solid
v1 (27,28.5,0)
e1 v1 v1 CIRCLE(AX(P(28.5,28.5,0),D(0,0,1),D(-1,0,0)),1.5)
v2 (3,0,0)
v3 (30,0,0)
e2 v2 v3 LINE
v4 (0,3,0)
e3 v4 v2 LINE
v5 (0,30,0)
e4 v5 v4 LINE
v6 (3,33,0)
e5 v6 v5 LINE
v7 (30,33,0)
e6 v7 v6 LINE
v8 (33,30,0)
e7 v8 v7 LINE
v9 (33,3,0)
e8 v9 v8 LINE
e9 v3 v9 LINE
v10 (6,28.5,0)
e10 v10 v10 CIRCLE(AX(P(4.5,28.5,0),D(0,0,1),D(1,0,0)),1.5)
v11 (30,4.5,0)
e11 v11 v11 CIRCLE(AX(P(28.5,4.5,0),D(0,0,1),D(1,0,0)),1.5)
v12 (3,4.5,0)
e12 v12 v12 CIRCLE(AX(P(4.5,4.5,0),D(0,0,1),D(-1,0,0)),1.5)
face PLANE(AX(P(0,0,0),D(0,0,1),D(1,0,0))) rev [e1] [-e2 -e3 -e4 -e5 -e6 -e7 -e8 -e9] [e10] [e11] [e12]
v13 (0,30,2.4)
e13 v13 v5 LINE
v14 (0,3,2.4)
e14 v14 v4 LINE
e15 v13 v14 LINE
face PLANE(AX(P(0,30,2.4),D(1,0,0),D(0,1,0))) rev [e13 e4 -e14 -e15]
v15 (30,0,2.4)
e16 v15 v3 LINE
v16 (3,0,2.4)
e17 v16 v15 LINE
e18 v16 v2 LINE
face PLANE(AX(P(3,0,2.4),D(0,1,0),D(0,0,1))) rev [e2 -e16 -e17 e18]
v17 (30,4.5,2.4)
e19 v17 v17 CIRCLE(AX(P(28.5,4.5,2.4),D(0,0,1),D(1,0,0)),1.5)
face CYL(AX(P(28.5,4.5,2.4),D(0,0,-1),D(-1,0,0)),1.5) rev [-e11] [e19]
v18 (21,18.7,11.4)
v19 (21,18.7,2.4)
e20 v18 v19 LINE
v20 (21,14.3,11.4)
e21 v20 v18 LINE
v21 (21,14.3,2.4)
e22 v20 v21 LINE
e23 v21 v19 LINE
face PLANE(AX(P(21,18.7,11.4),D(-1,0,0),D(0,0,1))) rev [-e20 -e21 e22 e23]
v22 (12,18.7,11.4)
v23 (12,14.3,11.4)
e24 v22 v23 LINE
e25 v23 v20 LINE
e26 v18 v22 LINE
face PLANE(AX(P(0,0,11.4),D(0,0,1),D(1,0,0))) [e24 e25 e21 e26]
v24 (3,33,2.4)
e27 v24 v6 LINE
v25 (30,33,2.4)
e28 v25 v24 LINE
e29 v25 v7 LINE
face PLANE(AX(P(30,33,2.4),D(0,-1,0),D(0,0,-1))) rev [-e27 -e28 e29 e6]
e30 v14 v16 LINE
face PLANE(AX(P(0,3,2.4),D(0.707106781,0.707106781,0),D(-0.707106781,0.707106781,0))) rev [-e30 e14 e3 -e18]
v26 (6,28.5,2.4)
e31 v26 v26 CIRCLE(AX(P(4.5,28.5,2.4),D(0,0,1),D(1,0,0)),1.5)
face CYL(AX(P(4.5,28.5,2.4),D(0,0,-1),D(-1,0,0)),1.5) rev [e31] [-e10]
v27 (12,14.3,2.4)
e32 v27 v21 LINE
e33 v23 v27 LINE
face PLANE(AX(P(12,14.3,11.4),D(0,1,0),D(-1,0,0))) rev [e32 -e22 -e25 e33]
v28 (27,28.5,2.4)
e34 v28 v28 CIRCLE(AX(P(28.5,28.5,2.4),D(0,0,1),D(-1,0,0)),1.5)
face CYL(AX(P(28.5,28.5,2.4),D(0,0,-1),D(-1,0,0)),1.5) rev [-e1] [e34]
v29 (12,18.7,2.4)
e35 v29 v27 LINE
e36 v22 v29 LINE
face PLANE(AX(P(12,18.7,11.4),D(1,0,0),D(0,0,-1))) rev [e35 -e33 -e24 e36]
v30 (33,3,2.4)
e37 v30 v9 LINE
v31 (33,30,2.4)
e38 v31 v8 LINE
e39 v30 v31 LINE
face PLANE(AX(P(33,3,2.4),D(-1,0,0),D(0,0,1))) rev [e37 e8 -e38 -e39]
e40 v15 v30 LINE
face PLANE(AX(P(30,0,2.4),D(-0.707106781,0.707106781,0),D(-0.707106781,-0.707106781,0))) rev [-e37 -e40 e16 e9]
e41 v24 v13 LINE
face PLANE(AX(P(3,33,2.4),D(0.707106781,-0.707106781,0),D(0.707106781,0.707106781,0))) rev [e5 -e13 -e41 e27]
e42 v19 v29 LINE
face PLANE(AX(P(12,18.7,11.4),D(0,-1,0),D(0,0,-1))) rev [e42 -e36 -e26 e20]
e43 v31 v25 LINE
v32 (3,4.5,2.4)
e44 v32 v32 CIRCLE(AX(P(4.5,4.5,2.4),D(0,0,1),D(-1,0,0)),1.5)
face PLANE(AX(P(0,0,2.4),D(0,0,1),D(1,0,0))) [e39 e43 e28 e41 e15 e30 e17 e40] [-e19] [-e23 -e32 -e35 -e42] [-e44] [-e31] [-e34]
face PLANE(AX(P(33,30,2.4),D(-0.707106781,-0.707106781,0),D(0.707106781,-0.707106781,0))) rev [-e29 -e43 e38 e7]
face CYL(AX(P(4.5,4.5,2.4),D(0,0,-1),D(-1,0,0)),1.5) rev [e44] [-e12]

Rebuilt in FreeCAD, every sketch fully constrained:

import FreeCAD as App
import Part
import Sketcher

V = App.Vector
Q = App.Units.Quantity


def add_polygon(sketch, points):
    """Adds a closed chain of lines whose ends are joined by coincident constraints."""
    first, n = sketch.GeometryCount, len(points)
    for a, b in zip(points, points[1:] + points[:1]):
        sketch.addGeometry(Part.LineSegment(App.Vector(*a, 0), App.Vector(*b, 0)), False)
    for i in range(n):
        sketch.addConstraint(Sketcher.Constraint("Coincident", first + i, 2, first + (i + 1) % n, 1))

doc = App.newDocument("Part")
body = doc.addObject("PartDesign::Body", "Body")

# Sketch on XY plane
sketch1 = body.newObject("Sketcher::SketchObject", "Sketch")
sketch1.AttachmentSupport = (doc.getObject("XY_Plane"), [""])
sketch1.MapMode = "FlatFace"
add_polygon(sketch1, [(0, 30), (0, 3), (3, 0), (30, 0), (33, 3), (33, 30), (30, 33), (3, 33)])  # lines 0-7
sketch1.addGeometry(Part.Circle(V(4.5, 4.5, 0), V(0, 0, 1), 1.5), False)  # 8
sketch1.addGeometry(Part.Circle(V(28.5, 4.5, 0), V(0, 0, 1), 1.5), False)  # 9
sketch1.addGeometry(Part.Circle(V(4.5, 28.5, 0), V(0, 0, 1), 1.5), False)  # 10
sketch1.addGeometry(Part.Circle(V(28.5, 28.5, 0), V(0, 0, 1), 1.5), False)  # 11
sketch1.addConstraint([
    Sketcher.Constraint("Vertical", 0),
    Sketcher.Constraint("Horizontal", 2),
    Sketcher.Constraint("Vertical", 4),
    Sketcher.Constraint("Horizontal", 6),
    Sketcher.Constraint("Equal", 8, 9),
    Sketcher.Constraint("Equal", 9, 10),
    Sketcher.Constraint("Equal", 10, 11),
    Sketcher.Constraint("PointOnObject", 0, 2, -2),
    Sketcher.Constraint("PointOnObject", 1, 2, -1),
    Sketcher.Constraint("Perpendicular", 1, 3),
    Sketcher.Constraint("Perpendicular", 3, 5),
    Sketcher.Constraint("Perpendicular", 5, 7),
    Sketcher.Constraint("Horizontal", 8, 3, 9, 3),
    Sketcher.Constraint("Horizontal", 10, 3, 11, 3),
    Sketcher.Constraint("Horizontal", 0, 2, 3, 2),
    Sketcher.Constraint("Horizontal", 4, 2, 7, 2),
    Sketcher.Constraint("Vertical", 8, 3, 10, 3),
    Sketcher.Constraint("Vertical", 9, 3, 11, 3),
    Sketcher.Constraint("Vertical", 2, 2, 5, 2),
    Sketcher.Constraint("Vertical", 1, 2, 6, 2),
    Sketcher.Constraint("Equal", 6, 0),
    Sketcher.Constraint("Diameter", 8, Q("3 mm")),
    Sketcher.Constraint("DistanceX", 2, 1, 2, 2, Q("27 mm")),
    Sketcher.Constraint("DistanceY", -1, 1, 0, 2, Q("3 mm")),
    Sketcher.Constraint("DistanceX", 8, 3, 9, 3, Q("24 mm")),
    Sketcher.Constraint("DistanceY", 8, 3, 10, 3, Q("24 mm")),
    Sketcher.Constraint("DistanceX", -1, 1, 8, 3, Q("4.5 mm")),
    Sketcher.Constraint("DistanceY", -1, 1, 8, 3, Q("4.5 mm")),
])
pad1 = body.newObject("PartDesign::Pad", "Pad")
pad1.Profile = sketch1
pad1.Length = 2.4

# Sketch on XY plane
sketch2 = body.newObject("Sketcher::SketchObject", "Sketch001")
sketch2.AttachmentSupport = (doc.getObject("XY_Plane"), [""])
sketch2.MapMode = "FlatFace"
sketch2.AttachmentOffset = App.Placement(V(0, 0, 2.4), App.Rotation())
add_polygon(sketch2, [(12, 18.7), (12, 14.3), (21, 14.3), (21, 18.7)])  # lines 0-3
sketch2.addConstraint([
    Sketcher.Constraint("Vertical", 0),
    Sketcher.Constraint("Horizontal", 1),
    Sketcher.Constraint("Vertical", 2),
    Sketcher.Constraint("Horizontal", 3),
    Sketcher.Constraint("DistanceX", 1, 1, 1, 2, Q("9 mm")),
    Sketcher.Constraint("DistanceY", 0, 2, 0, 1, Q("4.4 mm")),
    Sketcher.Constraint("DistanceX", -1, 1, 0, 2, Q("12 mm")),
    Sketcher.Constraint("DistanceY", -1, 1, 0, 2, Q("14.3 mm")),
])
pad2 = body.newObject("PartDesign::Pad", "Pad001")
pad2.Profile = sketch2
pad2.Length = 9

doc.recompute()
